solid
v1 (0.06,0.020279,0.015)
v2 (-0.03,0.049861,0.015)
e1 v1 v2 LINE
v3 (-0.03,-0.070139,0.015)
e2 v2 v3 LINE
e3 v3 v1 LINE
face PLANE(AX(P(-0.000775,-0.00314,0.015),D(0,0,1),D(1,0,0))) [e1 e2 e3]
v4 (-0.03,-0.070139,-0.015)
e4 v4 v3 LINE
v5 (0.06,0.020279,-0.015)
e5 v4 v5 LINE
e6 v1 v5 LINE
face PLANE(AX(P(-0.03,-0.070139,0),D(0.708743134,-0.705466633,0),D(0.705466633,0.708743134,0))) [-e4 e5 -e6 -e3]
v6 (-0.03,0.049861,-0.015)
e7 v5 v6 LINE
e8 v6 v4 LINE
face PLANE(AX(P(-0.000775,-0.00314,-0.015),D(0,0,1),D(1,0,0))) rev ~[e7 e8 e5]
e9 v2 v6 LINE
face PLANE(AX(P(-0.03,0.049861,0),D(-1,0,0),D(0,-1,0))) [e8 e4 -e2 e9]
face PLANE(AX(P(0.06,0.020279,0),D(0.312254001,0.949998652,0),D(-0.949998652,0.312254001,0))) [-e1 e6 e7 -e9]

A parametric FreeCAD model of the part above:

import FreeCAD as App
import Part
import Sketcher

V = App.Vector


def add_polygon(sketch, points):
    """Adds a closed chain of lines whose ends are joined by coincident constraints."""
    first, n = sketch.GeometryCount, len(points)
    for a, b in zip(points, points[1:] + points[:1]):
        sketch.addGeometry(Part.LineSegment(App.Vector(*a, 0), App.Vector(*b, 0)), False)
    for i in range(n):
        sketch.addConstraint(Sketcher.Constraint("Coincident", first + i, 2, first + (i + 1) % n, 1))

doc = App.newDocument("Part")
params = doc.addObject("Spreadsheet::Sheet", "Params")
for row, (alias, value) in enumerate([
    ("sketch1_height", "0.12 mm"),
    ("pad1_length", "0.03 mm"),
], start=1):
    params.set(f"A{row}", alias)
    params.set(f"B{row}", "=" + value)
    params.setAlias(f"B{row}", alias)

body = doc.addObject("PartDesign::Body", "Body")

# Sketch on XY plane
sketch1 = doc.addObject("Sketcher::SketchObject", "Sketch")
body.addObject(sketch1)
sketch1.AttachmentSupport = (doc.XY_Plane, [""])
sketch1.MapMode = "FlatFace"
add_polygon(sketch1, [(-0.03, 0.05), (-0.03, -0.07), (0.06, 0.02)])  # lines 0-2
sketch1.addConstraint([
    Sketcher.Constraint("Vertical", 0),
    Sketcher.Constraint("DistanceY", 0, 2, 0, 1, 0.12),
    Sketcher.Constraint("DistanceX", 0, 2, -1, 1, 0.03),
    Sketcher.Constraint("DistanceX", -1, 1, 1, 2, 0.06),
    Sketcher.Constraint("DistanceY", 0, 2, -1, 1, 0.070139),
    Sketcher.Constraint("DistanceY", -1, 1, 1, 2, 0.020279),
])
sketch1.setExpression("Constraints[4]", "Params.sketch1_height")
pad1 = doc.addObject("PartDesign::Pad", "Pad")
body.addObject(pad1)
pad1.Profile = sketch1
pad1.setExpression("Length", "Params.pad1_length")
pad1.Midplane = True

doc.recompute()
